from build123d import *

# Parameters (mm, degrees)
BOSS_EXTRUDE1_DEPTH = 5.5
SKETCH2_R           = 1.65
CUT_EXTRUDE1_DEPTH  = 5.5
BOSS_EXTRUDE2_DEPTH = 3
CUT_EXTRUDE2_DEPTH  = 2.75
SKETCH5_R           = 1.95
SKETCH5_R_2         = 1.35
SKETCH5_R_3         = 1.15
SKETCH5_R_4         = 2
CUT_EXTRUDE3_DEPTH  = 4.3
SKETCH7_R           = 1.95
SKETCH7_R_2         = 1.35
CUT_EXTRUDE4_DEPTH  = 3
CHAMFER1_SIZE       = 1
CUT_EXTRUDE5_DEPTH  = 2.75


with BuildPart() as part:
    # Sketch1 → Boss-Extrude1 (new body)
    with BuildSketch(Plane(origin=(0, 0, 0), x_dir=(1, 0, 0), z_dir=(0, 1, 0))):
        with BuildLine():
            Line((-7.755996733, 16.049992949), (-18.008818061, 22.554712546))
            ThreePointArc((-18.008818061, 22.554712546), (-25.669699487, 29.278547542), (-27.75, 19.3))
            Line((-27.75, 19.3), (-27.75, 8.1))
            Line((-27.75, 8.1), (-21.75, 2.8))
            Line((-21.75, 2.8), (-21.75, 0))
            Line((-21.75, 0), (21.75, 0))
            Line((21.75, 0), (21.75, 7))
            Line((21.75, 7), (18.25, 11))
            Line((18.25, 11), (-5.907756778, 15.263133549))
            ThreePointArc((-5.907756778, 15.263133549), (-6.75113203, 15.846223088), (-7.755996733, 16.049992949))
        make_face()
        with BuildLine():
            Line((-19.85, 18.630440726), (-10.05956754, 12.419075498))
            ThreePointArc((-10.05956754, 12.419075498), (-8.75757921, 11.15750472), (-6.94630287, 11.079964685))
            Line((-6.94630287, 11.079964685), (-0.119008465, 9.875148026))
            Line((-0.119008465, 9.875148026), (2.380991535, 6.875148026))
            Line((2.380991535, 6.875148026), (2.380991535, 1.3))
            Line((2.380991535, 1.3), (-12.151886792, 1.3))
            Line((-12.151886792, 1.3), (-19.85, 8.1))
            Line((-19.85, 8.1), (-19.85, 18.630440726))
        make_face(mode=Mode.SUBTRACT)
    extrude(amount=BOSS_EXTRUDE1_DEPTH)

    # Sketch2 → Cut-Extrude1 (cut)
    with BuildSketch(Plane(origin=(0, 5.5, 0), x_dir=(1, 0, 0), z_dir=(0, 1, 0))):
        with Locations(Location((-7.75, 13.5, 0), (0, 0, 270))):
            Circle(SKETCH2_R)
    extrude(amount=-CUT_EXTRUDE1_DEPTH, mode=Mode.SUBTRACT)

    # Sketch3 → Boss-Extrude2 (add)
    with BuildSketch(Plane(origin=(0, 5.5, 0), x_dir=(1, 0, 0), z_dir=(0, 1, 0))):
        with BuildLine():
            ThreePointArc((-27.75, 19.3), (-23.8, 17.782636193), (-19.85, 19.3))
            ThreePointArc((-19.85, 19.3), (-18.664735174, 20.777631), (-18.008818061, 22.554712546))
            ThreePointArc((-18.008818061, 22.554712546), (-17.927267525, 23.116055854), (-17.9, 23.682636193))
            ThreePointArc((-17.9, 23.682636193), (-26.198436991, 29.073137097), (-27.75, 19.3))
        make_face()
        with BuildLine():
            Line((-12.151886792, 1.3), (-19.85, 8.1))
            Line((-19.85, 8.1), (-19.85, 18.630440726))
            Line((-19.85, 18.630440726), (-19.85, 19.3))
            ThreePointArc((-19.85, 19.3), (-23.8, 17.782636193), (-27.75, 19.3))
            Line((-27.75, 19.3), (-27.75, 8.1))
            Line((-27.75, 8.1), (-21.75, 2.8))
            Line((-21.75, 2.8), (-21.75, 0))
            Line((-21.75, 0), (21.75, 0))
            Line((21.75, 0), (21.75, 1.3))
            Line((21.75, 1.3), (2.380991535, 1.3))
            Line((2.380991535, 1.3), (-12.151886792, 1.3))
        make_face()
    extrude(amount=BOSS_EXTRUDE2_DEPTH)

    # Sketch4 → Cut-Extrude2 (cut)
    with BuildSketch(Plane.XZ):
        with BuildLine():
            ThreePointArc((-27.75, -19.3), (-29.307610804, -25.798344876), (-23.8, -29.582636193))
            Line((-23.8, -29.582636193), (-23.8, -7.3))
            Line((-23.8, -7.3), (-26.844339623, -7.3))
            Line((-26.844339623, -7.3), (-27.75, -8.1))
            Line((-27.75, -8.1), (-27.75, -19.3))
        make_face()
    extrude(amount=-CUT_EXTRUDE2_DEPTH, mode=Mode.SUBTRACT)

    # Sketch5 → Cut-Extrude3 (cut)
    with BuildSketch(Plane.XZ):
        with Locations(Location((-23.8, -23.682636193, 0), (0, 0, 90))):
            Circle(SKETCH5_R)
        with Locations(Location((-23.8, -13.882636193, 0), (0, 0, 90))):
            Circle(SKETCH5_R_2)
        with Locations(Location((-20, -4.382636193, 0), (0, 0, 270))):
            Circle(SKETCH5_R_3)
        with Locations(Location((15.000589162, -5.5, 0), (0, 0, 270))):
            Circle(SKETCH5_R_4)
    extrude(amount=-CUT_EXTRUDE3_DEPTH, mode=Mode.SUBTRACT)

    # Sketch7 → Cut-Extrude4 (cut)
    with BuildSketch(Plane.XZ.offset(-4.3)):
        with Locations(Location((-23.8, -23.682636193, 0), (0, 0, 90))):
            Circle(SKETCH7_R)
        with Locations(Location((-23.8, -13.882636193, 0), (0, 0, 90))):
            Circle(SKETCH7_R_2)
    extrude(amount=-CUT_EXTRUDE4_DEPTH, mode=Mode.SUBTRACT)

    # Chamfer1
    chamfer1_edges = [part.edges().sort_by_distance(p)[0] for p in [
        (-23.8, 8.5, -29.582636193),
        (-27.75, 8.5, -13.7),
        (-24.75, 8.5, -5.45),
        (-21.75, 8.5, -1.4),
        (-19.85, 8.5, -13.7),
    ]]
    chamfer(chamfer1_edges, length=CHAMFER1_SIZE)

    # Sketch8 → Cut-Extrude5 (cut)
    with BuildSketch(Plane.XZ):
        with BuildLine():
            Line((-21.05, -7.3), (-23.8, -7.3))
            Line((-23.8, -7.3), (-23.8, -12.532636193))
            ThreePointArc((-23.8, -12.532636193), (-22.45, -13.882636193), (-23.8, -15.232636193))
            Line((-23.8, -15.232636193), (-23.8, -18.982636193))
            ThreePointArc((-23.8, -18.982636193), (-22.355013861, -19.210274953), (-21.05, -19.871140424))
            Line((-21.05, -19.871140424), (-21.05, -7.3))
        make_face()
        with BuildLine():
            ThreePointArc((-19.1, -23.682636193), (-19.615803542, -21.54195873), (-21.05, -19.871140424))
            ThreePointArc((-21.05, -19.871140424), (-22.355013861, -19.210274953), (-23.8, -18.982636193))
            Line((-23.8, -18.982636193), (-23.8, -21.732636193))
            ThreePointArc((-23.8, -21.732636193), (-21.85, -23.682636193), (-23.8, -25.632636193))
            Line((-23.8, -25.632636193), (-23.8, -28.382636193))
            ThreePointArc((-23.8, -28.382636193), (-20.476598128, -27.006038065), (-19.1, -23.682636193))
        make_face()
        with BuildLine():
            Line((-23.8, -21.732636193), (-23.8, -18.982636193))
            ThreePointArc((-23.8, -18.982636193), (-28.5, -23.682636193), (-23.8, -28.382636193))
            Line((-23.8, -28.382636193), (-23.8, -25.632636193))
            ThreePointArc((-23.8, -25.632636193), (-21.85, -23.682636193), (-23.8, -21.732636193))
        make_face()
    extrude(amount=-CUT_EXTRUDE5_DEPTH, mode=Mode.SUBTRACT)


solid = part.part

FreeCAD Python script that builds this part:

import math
import FreeCAD as App
import Part
import Sketcher
Q = App.Units.Quantity


def edges_at(feature, points):
    """Names of the edges that pass closest to the given points."""
    edges = feature.Shape.Edges
    near = lambda p: min(range(len(edges)), key=lambda i: edges[i].distToShape(Part.Vertex(*p))[0])
    return sorted({f"Edge{near(p) + 1}" for p in points})

doc = App.newDocument("Part")
params = doc.addObject("Spreadsheet::Sheet", "Params")
for row, (alias, value) in enumerate([
    ("sketch1_radius", "5.9 mm"),
    ("sketch1_height", "7 mm"),
    ("sketch1_radius2", "2.55 mm"),
    ("sketch1_width", "43.5 mm"),
    ("sketch1_height2", "11.2 mm"),
    ("pad1_length", "5.5 mm"),
    ("sketch2_diameter", "3.3 mm"),
    ("pocket1_length", "5.5 mm"),
    ("sketch3_radius", "5.9 mm"),
    ("sketch3_width", "43.5 mm"),
    ("sketch3_height", "11.2 mm"),
    ("sketch3_height2", "2.8 mm"),
    ("sketch3_height3", "1.3 mm"),
    ("pad2_length", "3 mm"),
    ("sketch4_radius", "5.9 mm"),
    ("sketch4_height", "11.2 mm"),
    ("pocket2_length", "2.75 mm"),
    ("sketch5_diameter", "4 mm"),
    ("sketch5_diameter2", "3.9 mm"),
    ("sketch5_diameter3", "2.7 mm"),
    ("sketch5_diameter4", "2.3 mm"),
    ("pocket3_length", "4.3 mm"),
    ("sketch6_diameter", "3.9 mm"),
    ("sketch6_diameter2", "2.7 mm"),
    ("pocket4_length", "3 mm"),
    ("chamfer_size", "1 mm"),
    ("sketch7_radius", "4.7 mm"),
    ("sketch7_radius2", "1.35 mm"),
    ("sketch7_width", "2.75 mm"),
    ("sketch7_height", "3.75 mm"),
    ("pocket5_length", "2.75 mm"),
], start=1):
    params.set(f"A{row}", alias)
    params.set(f"B{row}", "=" + value)
    params.setAlias(f"B{row}", alias)

body = doc.addObject("PartDesign::Body", "Body")

# Sketch on XZ plane
sketch1 = body.newObject("Sketcher::SketchObject", "Sketch")
sketch1.AttachmentSupport = (doc.getObject("XZ_Plane"), [""])
sketch1.MapMode = "FlatFace"
sketch1.addGeometry([
    Part.LineSegment(App.Vector(-7.8, -16, 0), App.Vector(-18, -22.6, 0)),  # 0
    Part.ArcOfCircle(Part.Circle(App.Vector(-23.8, -23.7, 0), App.Vector(0, 0, 1), 5.9), math.radians(132), math.radians(371)),  # 1
    Part.LineSegment(App.Vector(-27.8, -19.3, 0), App.Vector(-27.8, -8.1, 0)),  # 2
    Part.LineSegment(App.Vector(-27.8, -8.1, 0), App.Vector(-21.8, -2.8, 0)),  # 3
    Part.LineSegment(App.Vector(-21.8, -2.8, 0), App.Vector(-21.8, 0, 0)),  # 4
    Part.LineSegment(App.Vector(-21.8, 0, 0), App.Vector(21.8, 0, 0)),  # 5
    Part.LineSegment(App.Vector(21.8, 0, 0), App.Vector(21.8, -7, 0)),  # 6
    Part.LineSegment(App.Vector(21.8, -7, 0), App.Vector(18.2, -11, 0)),  # 7
    Part.LineSegment(App.Vector(18.2, -11, 0), App.Vector(-5.9, -15.3, 0)),  # 8
    Part.ArcOfCircle(Part.Circle(App.Vector(-7.8, -13.5, 0), App.Vector(0, 0, 1), 2.6), math.radians(-90), math.radians(-44)),  # 9
    Part.LineSegment(App.Vector(-19.9, -8.1, 0), App.Vector(-19.9, -18.6, 0)),  # 10
    Part.LineSegment(App.Vector(-19.9, -18.6, 0), App.Vector(-10.1, -12.4, 0)),  # 11
    Part.ArcOfCircle(Part.Circle(App.Vector(-7.8, -13.5, 0), App.Vector(0, 0, 1), 2.6), math.radians(72), math.radians(155)),  # 12
    Part.LineSegment(App.Vector(-6.9, -11.1, 0), App.Vector(-0.1, -9.9, 0)),  # 13
    Part.LineSegment(App.Vector(-0.1, -9.9, 0), App.Vector(2.4, -6.9, 0)),  # 14
    Part.LineSegment(App.Vector(2.4, -6.9, 0), App.Vector(2.4, -1.3, 0)),  # 15
    Part.LineSegment(App.Vector(2.4, -1.3, 0), App.Vector(-12.2, -1.3, 0)),  # 16
    Part.LineSegment(App.Vector(-12.2, -1.3, 0), App.Vector(-19.9, -8.1, 0)),  # 17
], False)
sketch1.addConstraint([
    Sketcher.Constraint("Coincident", 0, 2, 1, 2),
    Sketcher.Constraint("Coincident", 1, 1, 2, 1),
    Sketcher.Constraint("Coincident", 2, 2, 3, 1),
    Sketcher.Constraint("Coincident", 3, 2, 4, 1),
    Sketcher.Constraint("Coincident", 4, 2, 5, 1),
    Sketcher.Constraint("Coincident", 5, 2, 6, 1),
    Sketcher.Constraint("Coincident", 6, 2, 7, 1),
    Sketcher.Constraint("Coincident", 7, 2, 8, 1),
    Sketcher.Constraint("Coincident", 8, 2, 9, 2),
    Sketcher.Constraint("Coincident", 9, 1, 0, 1),
    Sketcher.Constraint("Coincident", 10, 2, 11, 1),
    Sketcher.Constraint("Coincident", 11, 2, 12, 2),
    Sketcher.Constraint("Coincident", 12, 1, 13, 1),
    Sketcher.Constraint("Coincident", 13, 2, 14, 1),
    Sketcher.Constraint("Coincident", 14, 2, 15, 1),
    Sketcher.Constraint("Coincident", 15, 2, 16, 1),
    Sketcher.Constraint("Coincident", 16, 2, 17, 1),
    Sketcher.Constraint("Coincident", 17, 2, 10, 1),
    Sketcher.Constraint("Vertical", 2),
    Sketcher.Constraint("Vertical", 4),
    Sketcher.Constraint("Horizontal", 5),
    Sketcher.Constraint("Vertical", 6),
    Sketcher.Constraint("Vertical", 10),
    Sketcher.Constraint("Vertical", 15),
    Sketcher.Constraint("Horizontal", 16),
    Sketcher.Constraint("Coincident", 12, 3, 9, 3),
    Sketcher.Constraint("Equal", 9, 12),
    Sketcher.Constraint("Symmetric", 4, 2, 5, 2, -1, 1),
    Sketcher.Constraint("Parallel", 0, 11),
    Sketcher.Constraint("Parallel", 8, 13),
    Sketcher.Constraint("Parallel", 3, 17),
    Sketcher.Constraint("Horizontal", 2, 2, 17, 2),
    Sketcher.Constraint("Radius", 1, Q("5.9 mm")),
    Sketcher.Constraint("DistanceY", 6, 2, 6, 1, Q("7 mm")),
    Sketcher.Constraint("Radius", 9, Q("2.55 mm")),
    Sketcher.Constraint("DistanceX", 5, 1, 5, 2, Q("43.5 mm")),
    Sketcher.Constraint("DistanceY", 2, 1, 2, 2, Q("11.2 mm")),
    Sketcher.Constraint("DistanceY", 4, 1, 4, 2, Q("2.8 mm")),
    Sketcher.Constraint("DistanceY", 7, 2, -1, 1, Q("11 mm")),
    Sketcher.Constraint("DistanceX", 1, 1, 9, 3, Q("20 mm")),
    Sketcher.Constraint("DistanceX", 2, 2, 3, 2, Q("6 mm")),
    Sketcher.Constraint("DistanceX", 12, 3, 7, 2, Q("26 mm")),
    Sketcher.Constraint("DistanceY", 13, 2, 14, 2, Q("3 mm")),
    Sketcher.Constraint("DistanceX", 1, 3, -1, 1, Q("23.8 mm")),
    Sketcher.Constraint("DistanceY", 9, 3, -1, 1, Q("13.5 mm")),
    Sketcher.Constraint("DistanceY", 1, 1, -1, 1, Q("19.3 mm")),
    Sketcher.Constraint("DistanceY", 15, 2, -1, 1, Q("1.3 mm")),
    Sketcher.Constraint("DistanceX", 1, 1, 10, 2, Q("7.9 mm")),
    Sketcher.Constraint("DistanceX", 13, 2, 14, 2, Q("2.5 mm")),
    Sketcher.Constraint("DistanceX", 16, 2, 16, 1, Q("14.532878 mm")),
    Sketcher.Constraint("DistanceY", 10, 2, 10, 1, Q("10.530441 mm")),
    Sketcher.Constraint("DistanceY", 15, 1, 15, 2, Q("5.575148 mm")),
    Sketcher.Constraint("Distance", 8, Q("24.531032 mm")),
    Sketcher.Constraint("Distance", 11, Q("11.594552 mm")),
    Sketcher.Constraint("DistanceX", 0, 2, -1, 1, Q("18.008818 mm")),
])
sketch1.setExpression("Constraints[32]", "Params.sketch1_radius")
sketch1.setExpression("Constraints[33]", "Params.sketch1_height")
sketch1.setExpression("Constraints[34]", "Params.sketch1_radius2")
sketch1.setExpression("Constraints[35]", "Params.sketch1_width")
sketch1.setExpression("Constraints[36]", "Params.sketch1_height2")
pad1 = body.newObject("PartDesign::Pad", "Pad")
pad1.Profile = sketch1
pad1.setExpression("Length", "Params.pad1_length")
pad1.Reversed = True

# Sketch on XZ plane
sketch2 = body.newObject("Sketcher::SketchObject", "Sketch001")
sketch2.AttachmentSupport = (doc.getObject("XZ_Plane"), [""])
sketch2.MapMode = "FlatFace"
sketch2.AttachmentOffset = App.Placement(App.Vector(0, 0, -5.5), App.Rotation())
sketch2.addGeometry(Part.Circle(App.Vector(-7.8, -13.5, 0), App.Vector(0, 0, 1), 1.6), False)
sketch2.addConstraint([
    Sketcher.Constraint("Diameter", 0, Q("3.3 mm")),
    Sketcher.Constraint("DistanceY", 0, 3, -1, 1, Q("13.5 mm")),
    Sketcher.Constraint("DistanceX", 0, 3, -1, 1, Q("7.75 mm")),
])
sketch2.setExpression("Constraints[0]", "Params.sketch2_diameter")
pocket1 = body.newObject("PartDesign::Pocket", "Pocket")
pocket1.Profile = sketch2
pocket1.setExpression("Length", "Params.pocket1_length")
pocket1.Reversed = True

# Sketch on XZ plane
sketch3 = body.newObject("Sketcher::SketchObject", "Sketch002")
sketch3.AttachmentSupport = (doc.getObject("XZ_Plane"), [""])
sketch3.MapMode = "FlatFace"
sketch3.AttachmentOffset = App.Placement(App.Vector(0, 0, -5.5), App.Rotation())
sketch3.addGeometry([
    Part.ArcOfCircle(Part.Circle(App.Vector(-23.8, -23.7, 0), App.Vector(0, 0, 1), 5.9), math.radians(11), math.radians(48)),  # 0
    Part.ArcOfCircle(Part.Circle(App.Vector(-23.8, -23.7, 0), App.Vector(0, 0, 1), 5.9), math.radians(0), math.radians(11.02)),  # 1
    Part.ArcOfCircle(Part.Circle(App.Vector(-23.8, -23.7, 0), App.Vector(0, 0, 1), 5.9), math.radians(132), math.radians(360)),  # 2
    Part.LineSegment(App.Vector(-27.8, -19.3, 0), App.Vector(-27.8, -8.1, 0)),  # 3
    Part.LineSegment(App.Vector(-27.8, -8.1, 0), App.Vector(-21.8, -2.8, 0)),  # 4
    Part.LineSegment(App.Vector(-21.8, -2.8, 0), App.Vector(-21.8, 0, 0)),  # 5
    Part.LineSegment(App.Vector(-21.8, 0, 0), App.Vector(21.8, 0, 0)),  # 6
    Part.LineSegment(App.Vector(21.8, 0, 0), App.Vector(21.8, -1.3, 0)),  # 7
    Part.LineSegment(App.Vector(21.8, -1.3, 0), App.Vector(-12.2, -1.3, 0)),  # 8
    Part.LineSegment(App.Vector(-12.2, -1.3, 0), App.Vector(-19.9, -8.1, 0)),  # 9
    Part.LineSegment(App.Vector(-19.9, -8.1, 0), App.Vector(-19.9, -19.3, 0)),  # 10
], False)
sketch3.addConstraint([
    Sketcher.Constraint("Tangent", 0, 1, 1, 2),
    Sketcher.Constraint("Tangent", 1, 1, 2, 2),
    Sketcher.Constraint("Coincident", 2, 1, 3, 1),
    Sketcher.Constraint("Coincident", 3, 2, 4, 1),
    Sketcher.Constraint("Coincident", 4, 2, 5, 1),
    Sketcher.Constraint("Coincident", 5, 2, 6, 1),
    Sketcher.Constraint("Coincident", 6, 2, 7, 1),
    Sketcher.Constraint("Coincident", 7, 2, 8, 1),
    Sketcher.Constraint("Coincident", 8, 2, 9, 1),
    Sketcher.Constraint("Coincident", 9, 2, 10, 1),
    Sketcher.Constraint("Coincident", 10, 2, 0, 2),
    Sketcher.Constraint("Vertical", 3),
    Sketcher.Constraint("Vertical", 5),
    Sketcher.Constraint("Horizontal", 6),
    Sketcher.Constraint("Vertical", 7),
    Sketcher.Constraint("Horizontal", 8),
    Sketcher.Constraint("Vertical", 10),
    Sketcher.Constraint("Coincident", 2, 3, 0, 3),
    Sketcher.Constraint("Symmetric", 5, 2, 6, 2, -1, 1),
    Sketcher.Constraint("Parallel", 4, 9),
    Sketcher.Constraint("Horizontal", 2, 3, 1, 1),
    Sketcher.Constraint("Horizontal", 3, 2, 9, 2),
    Sketcher.Constraint("Horizontal", 2, 1, 10, 2),
    Sketcher.Constraint("Radius", 0, Q("5.9 mm")),
    Sketcher.Constraint("DistanceX", 6, 1, 6, 2, Q("43.5 mm")),
    Sketcher.Constraint("DistanceY", 3, 1, 3, 2, Q("11.2 mm")),
    Sketcher.Constraint("DistanceY", 5, 1, 5, 2, Q("2.8 mm")),
    Sketcher.Constraint("DistanceY", 7, 2, 7, 1, Q("1.3 mm")),
    Sketcher.Constraint("DistanceX", 3, 2, 4, 2, Q("6 mm")),
    Sketcher.Constraint("DistanceX", 0, 3, -1, 1, Q("23.8 mm")),
    Sketcher.Constraint("DistanceY", 2, 1, -1, 1, Q("19.3 mm")),
    Sketcher.Constraint("DistanceX", 0, 1, -1, 1, Q("18.008818 mm")),
])
sketch3.setExpression("Constraints[23]", "Params.sketch3_radius")
sketch3.setExpression("Constraints[24]", "Params.sketch3_width")
sketch3.setExpression("Constraints[25]", "Params.sketch3_height")
sketch3.setExpression("Constraints[26]", "Params.sketch3_height2")
sketch3.setExpression("Constraints[27]", "Params.sketch3_height3")
pad2 = body.newObject("PartDesign::Pad", "Pad001")
pad2.Profile = sketch3
pad2.setExpression("Length", "Params.pad2_length")
pad2.Reversed = True

# Sketch on XZ plane
sketch4 = body.newObject("Sketcher::SketchObject", "Sketch003")
sketch4.AttachmentSupport = (doc.getObject("XZ_Plane"), [""])
sketch4.MapMode = "FlatFace"
sketch4.addGeometry([
    Part.ArcOfCircle(Part.Circle(App.Vector(-23.8, -23.7, 0), App.Vector(0, 0, 1), 5.9), math.radians(132), math.radians(270)),  # 0
    Part.LineSegment(App.Vector(-23.8, -29.6, 0), App.Vector(-23.8, -7.3, 0)),  # 1
    Part.LineSegment(App.Vector(-23.8, -7.3, 0), App.Vector(-26.8, -7.3, 0)),  # 2
    Part.LineSegment(App.Vector(-26.8, -7.3, 0), App.Vector(-27.8, -8.1, 0)),  # 3
    Part.LineSegment(App.Vector(-27.8, -8.1, 0), App.Vector(-27.8, -19.3, 0)),  # 4
], False)
sketch4.addConstraint([
    Sketcher.Constraint("Coincident", 0, 2, 1, 1),
    Sketcher.Constraint("Coincident", 1, 2, 2, 1),
    Sketcher.Constraint("Coincident", 2, 2, 3, 1),
    Sketcher.Constraint("Coincident", 3, 2, 4, 1),
    Sketcher.Constraint("Coincident", 4, 2, 0, 1),
    Sketcher.Constraint("Vertical", 1),
    Sketcher.Constraint("Horizontal", 2),
    Sketcher.Constraint("Vertical", 4),
    Sketcher.Constraint("Radius", 0, Q("5.9 mm")),
    Sketcher.Constraint("DistanceY", 4, 2, 4, 1, Q("11.2 mm")),
    Sketcher.Constraint("DistanceY", 4, 2, 2, 2, Q("12 mm")),
    Sketcher.Constraint("DistanceX", 0, 3, -1, 1, Q("23.8 mm")),
    Sketcher.Constraint("DistanceX", 0, 2, -1, 1, Q("23.8 mm")),
    Sketcher.Constraint("DistanceY", 1, 2, -1, 1, Q("7.3 mm")),
    Sketcher.Constraint("DistanceX", 3, 2, -1, 1, Q("27.75 mm")),
    Sketcher.Constraint("DistanceX", 2, 2, 2, 1, Q("3.04434 mm")),
])
sketch4.setExpression("Constraints[8]", "Params.sketch4_radius")
sketch4.setExpression("Constraints[9]", "Params.sketch4_height")
pocket2 = body.newObject("PartDesign::Pocket", "Pocket001")
pocket2.Profile = sketch4
pocket2.setExpression("Length", "Params.pocket2_length")

# Sketch on XZ plane
sketch5 = body.newObject("Sketcher::SketchObject", "Sketch004")
sketch5.AttachmentSupport = (doc.getObject("XZ_Plane"), [""])
sketch5.MapMode = "FlatFace"
sketch5.addGeometry([
    Part.Circle(App.Vector(-23.8, -23.7, 0), App.Vector(0, 0, 1), 1.9),
    Part.Circle(App.Vector(-23.8, -13.9, 0), App.Vector(0, 0, 1), 1.4),
    Part.Circle(App.Vector(-20, -4.4, 0), App.Vector(0, 0, 1), 1.1),
    Part.Circle(App.Vector(15, -5.5, 0), App.Vector(0, 0, 1), 2),
], False)
sketch5.addConstraint([
    Sketcher.Constraint("Vertical", 0, 3, 1, 3),
    Sketcher.Constraint("Diameter", 3, Q("4 mm")),
    Sketcher.Constraint("Diameter", 0, Q("3.9 mm")),
    Sketcher.Constraint("Diameter", 1, Q("2.7 mm")),
    Sketcher.Constraint("Diameter", 2, Q("2.3 mm")),
    Sketcher.Constraint("DistanceX", 2, 3, -1, 1, Q("20 mm")),
    Sketcher.Constraint("DistanceX", 0, 3, -1, 1, Q("23.8 mm")),
    Sketcher.Constraint("DistanceY", 3, 3, -1, 1, Q("5.5 mm")),
    Sketcher.Constraint("DistanceY", 0, 3, 1, 3, Q("9.8 mm")),
    Sketcher.Constraint("DistanceY", 1, 3, 2, 3, Q("9.5 mm")),
    Sketcher.Constraint("DistanceX", -1, 1, 3, 3, Q("15.000589 mm")),
    Sketcher.Constraint("DistanceY", 0, 3, -1, 1, Q("23.682636 mm")),
])
sketch5.setExpression("Constraints[1]", "Params.sketch5_diameter")
sketch5.setExpression("Constraints[2]", "Params.sketch5_diameter2")
sketch5.setExpression("Constraints[3]", "Params.sketch5_diameter3")
sketch5.setExpression("Constraints[4]", "Params.sketch5_diameter4")
pocket3 = body.newObject("PartDesign::Pocket", "Pocket002")
pocket3.Profile = sketch5
pocket3.setExpression("Length", "Params.pocket3_length")

# Sketch on XZ plane
sketch6 = body.newObject("Sketcher::SketchObject", "Sketch005")
sketch6.AttachmentSupport = (doc.getObject("XZ_Plane"), [""])
sketch6.MapMode = "FlatFace"
sketch6.AttachmentOffset = App.Placement(App.Vector(0, 0, -4.3), App.Rotation())
sketch6.addGeometry([
    Part.Circle(App.Vector(-23.8, -23.7, 0), App.Vector(0, 0, 1), 1.9),
    Part.Circle(App.Vector(-23.8, -13.9, 0), App.Vector(0, 0, 1), 1.4),
], False)
sketch6.addConstraint([
    Sketcher.Constraint("Vertical", 0, 3, 1, 3),
    Sketcher.Constraint("Diameter", 0, Q("3.9 mm")),
    Sketcher.Constraint("Diameter", 1, Q("2.7 mm")),
    Sketcher.Constraint("DistanceX", 0, 3, -1, 1, Q("23.8 mm")),
    Sketcher.Constraint("DistanceY", 0, 3, 1, 3, Q("9.8 mm")),
    Sketcher.Constraint("DistanceY", 0, 3, -1, 1, Q("23.682636 mm")),
])
sketch6.setExpression("Constraints[1]", "Params.sketch6_diameter")
sketch6.setExpression("Constraints[2]", "Params.sketch6_diameter2")
pocket4 = body.newObject("PartDesign::Pocket", "Pocket003")
pocket4.Profile = sketch6
pocket4.setExpression("Length", "Params.pocket4_length")
doc.recompute()

chamfer = body.newObject("PartDesign::Chamfer", "Chamfer")
chamfer.Base = (pocket4, edges_at(pocket4, [
    (-26.198, 8.5, -29.073),
    (-27.75, 8.5, -13.7),
    (-24.75, 8.5, -5.45),
    (-21.75, 8.5, -1.4),
    (-19.85, 8.5, -13.7),
]))
chamfer.setExpression("Size", "Params.chamfer_size")

# Sketch on XZ plane
sketch7 = body.newObject("Sketcher::SketchObject", "Sketch006")
sketch7.AttachmentSupport = (doc.getObject("XZ_Plane"), [""])
sketch7.MapMode = "FlatFace"
sketch7.addGeometry([
    Part.LineSegment(App.Vector(-21.1, -7.3, 0), App.Vector(-23.8, -7.3, 0)),  # 0
    Part.LineSegment(App.Vector(-23.8, -7.3, 0), App.Vector(-23.8, -12.5, 0)),  # 1
    Part.ArcOfCircle(Part.Circle(App.Vector(-23.8, -13.9, 0), App.Vector(0, 0, 1), 1.4), math.radians(-90), math.radians(90)),  # 2
    Part.LineSegment(App.Vector(-23.8, -15.2, 0), App.Vector(-23.8, -19, 0)),  # 3
    Part.ArcOfCircle(Part.Circle(App.Vector(-23.8, -23.7, 0), App.Vector(0, 0, 1), 4.7), math.radians(90), math.radians(270)),  # 4
    Part.ArcOfCircle(Part.Circle(App.Vector(-23.8, -23.7, 0), App.Vector(0, 0, 1), 4.7), math.radians(-90), math.radians(0)),  # 5
    Part.ArcOfCircle(Part.Circle(App.Vector(-23.8, -23.7, 0), App.Vector(0, 0, 1), 4.7), math.radians(0), math.radians(54)),  # 6
    Part.LineSegment(App.Vector(-21.1, -19.9, 0), App.Vector(-21.1, -7.3, 0)),  # 7
], False)
sketch7.addConstraint([
    Sketcher.Constraint("Coincident", 0, 2, 1, 1),
    Sketcher.Constraint("Coincident", 1, 2, 2, 2),
    Sketcher.Constraint("Coincident", 2, 1, 3, 1),
    Sketcher.Constraint("Coincident", 3, 2, 4, 1),
    Sketcher.Constraint("Tangent", 4, 2, 5, 1),
    Sketcher.Constraint("Tangent", 5, 2, 6, 1),
    Sketcher.Constraint("Coincident", 6, 2, 7, 1),
    Sketcher.Constraint("Coincident", 7, 2, 0, 1),
    Sketcher.Constraint("Horizontal", 0),
    Sketcher.Constraint("Vertical", 1),
    Sketcher.Constraint("Vertical", 3),
    Sketcher.Constraint("Vertical", 7),
    Sketcher.Constraint("Coincident", 6, 3, 4, 3),
    Sketcher.Constraint("Horizontal", 6, 3, 5, 2),
    Sketcher.Constraint("Vertical", 2, 3, 4, 3),
    Sketcher.Constraint("Vertical", 6, 3, 0, 2),
    Sketcher.Constraint("Vertical", 1, 2, 2, 1),
    Sketcher.Constraint("Vertical", 3, 2, 4, 2),
    Sketcher.Constraint("Radius", 4, Q("4.7 mm")),
    Sketcher.Constraint("Radius", 2, Q("1.35 mm")),
    Sketcher.Constraint("DistanceX", 0, 2, 0, 1, Q("2.75 mm")),
    Sketcher.Constraint("DistanceY", 3, 2, 3, 1, Q("3.75 mm")),
    Sketcher.Constraint("DistanceX", 2, 3, -1, 1, Q("23.8 mm")),
    Sketcher.Constraint("DistanceY", 0, 2, -1, 1, Q("7.3 mm")),
    Sketcher.Constraint("DistanceY", 7, 1, 7, 2, Q("12.57114 mm")),
])
sketch7.setExpression("Constraints[18]", "Params.sketch7_radius")
sketch7.setExpression("Constraints[19]", "Params.sketch7_radius2")
sketch7.setExpression("Constraints[20]", "Params.sketch7_width")
sketch7.setExpression("Constraints[21]", "Params.sketch7_height")
pocket5 = body.newObject("PartDesign::Pocket", "Pocket004")
pocket5.Profile = sketch7
pocket5.setExpression("Length", "Params.pocket5_length")

doc.recompute()
